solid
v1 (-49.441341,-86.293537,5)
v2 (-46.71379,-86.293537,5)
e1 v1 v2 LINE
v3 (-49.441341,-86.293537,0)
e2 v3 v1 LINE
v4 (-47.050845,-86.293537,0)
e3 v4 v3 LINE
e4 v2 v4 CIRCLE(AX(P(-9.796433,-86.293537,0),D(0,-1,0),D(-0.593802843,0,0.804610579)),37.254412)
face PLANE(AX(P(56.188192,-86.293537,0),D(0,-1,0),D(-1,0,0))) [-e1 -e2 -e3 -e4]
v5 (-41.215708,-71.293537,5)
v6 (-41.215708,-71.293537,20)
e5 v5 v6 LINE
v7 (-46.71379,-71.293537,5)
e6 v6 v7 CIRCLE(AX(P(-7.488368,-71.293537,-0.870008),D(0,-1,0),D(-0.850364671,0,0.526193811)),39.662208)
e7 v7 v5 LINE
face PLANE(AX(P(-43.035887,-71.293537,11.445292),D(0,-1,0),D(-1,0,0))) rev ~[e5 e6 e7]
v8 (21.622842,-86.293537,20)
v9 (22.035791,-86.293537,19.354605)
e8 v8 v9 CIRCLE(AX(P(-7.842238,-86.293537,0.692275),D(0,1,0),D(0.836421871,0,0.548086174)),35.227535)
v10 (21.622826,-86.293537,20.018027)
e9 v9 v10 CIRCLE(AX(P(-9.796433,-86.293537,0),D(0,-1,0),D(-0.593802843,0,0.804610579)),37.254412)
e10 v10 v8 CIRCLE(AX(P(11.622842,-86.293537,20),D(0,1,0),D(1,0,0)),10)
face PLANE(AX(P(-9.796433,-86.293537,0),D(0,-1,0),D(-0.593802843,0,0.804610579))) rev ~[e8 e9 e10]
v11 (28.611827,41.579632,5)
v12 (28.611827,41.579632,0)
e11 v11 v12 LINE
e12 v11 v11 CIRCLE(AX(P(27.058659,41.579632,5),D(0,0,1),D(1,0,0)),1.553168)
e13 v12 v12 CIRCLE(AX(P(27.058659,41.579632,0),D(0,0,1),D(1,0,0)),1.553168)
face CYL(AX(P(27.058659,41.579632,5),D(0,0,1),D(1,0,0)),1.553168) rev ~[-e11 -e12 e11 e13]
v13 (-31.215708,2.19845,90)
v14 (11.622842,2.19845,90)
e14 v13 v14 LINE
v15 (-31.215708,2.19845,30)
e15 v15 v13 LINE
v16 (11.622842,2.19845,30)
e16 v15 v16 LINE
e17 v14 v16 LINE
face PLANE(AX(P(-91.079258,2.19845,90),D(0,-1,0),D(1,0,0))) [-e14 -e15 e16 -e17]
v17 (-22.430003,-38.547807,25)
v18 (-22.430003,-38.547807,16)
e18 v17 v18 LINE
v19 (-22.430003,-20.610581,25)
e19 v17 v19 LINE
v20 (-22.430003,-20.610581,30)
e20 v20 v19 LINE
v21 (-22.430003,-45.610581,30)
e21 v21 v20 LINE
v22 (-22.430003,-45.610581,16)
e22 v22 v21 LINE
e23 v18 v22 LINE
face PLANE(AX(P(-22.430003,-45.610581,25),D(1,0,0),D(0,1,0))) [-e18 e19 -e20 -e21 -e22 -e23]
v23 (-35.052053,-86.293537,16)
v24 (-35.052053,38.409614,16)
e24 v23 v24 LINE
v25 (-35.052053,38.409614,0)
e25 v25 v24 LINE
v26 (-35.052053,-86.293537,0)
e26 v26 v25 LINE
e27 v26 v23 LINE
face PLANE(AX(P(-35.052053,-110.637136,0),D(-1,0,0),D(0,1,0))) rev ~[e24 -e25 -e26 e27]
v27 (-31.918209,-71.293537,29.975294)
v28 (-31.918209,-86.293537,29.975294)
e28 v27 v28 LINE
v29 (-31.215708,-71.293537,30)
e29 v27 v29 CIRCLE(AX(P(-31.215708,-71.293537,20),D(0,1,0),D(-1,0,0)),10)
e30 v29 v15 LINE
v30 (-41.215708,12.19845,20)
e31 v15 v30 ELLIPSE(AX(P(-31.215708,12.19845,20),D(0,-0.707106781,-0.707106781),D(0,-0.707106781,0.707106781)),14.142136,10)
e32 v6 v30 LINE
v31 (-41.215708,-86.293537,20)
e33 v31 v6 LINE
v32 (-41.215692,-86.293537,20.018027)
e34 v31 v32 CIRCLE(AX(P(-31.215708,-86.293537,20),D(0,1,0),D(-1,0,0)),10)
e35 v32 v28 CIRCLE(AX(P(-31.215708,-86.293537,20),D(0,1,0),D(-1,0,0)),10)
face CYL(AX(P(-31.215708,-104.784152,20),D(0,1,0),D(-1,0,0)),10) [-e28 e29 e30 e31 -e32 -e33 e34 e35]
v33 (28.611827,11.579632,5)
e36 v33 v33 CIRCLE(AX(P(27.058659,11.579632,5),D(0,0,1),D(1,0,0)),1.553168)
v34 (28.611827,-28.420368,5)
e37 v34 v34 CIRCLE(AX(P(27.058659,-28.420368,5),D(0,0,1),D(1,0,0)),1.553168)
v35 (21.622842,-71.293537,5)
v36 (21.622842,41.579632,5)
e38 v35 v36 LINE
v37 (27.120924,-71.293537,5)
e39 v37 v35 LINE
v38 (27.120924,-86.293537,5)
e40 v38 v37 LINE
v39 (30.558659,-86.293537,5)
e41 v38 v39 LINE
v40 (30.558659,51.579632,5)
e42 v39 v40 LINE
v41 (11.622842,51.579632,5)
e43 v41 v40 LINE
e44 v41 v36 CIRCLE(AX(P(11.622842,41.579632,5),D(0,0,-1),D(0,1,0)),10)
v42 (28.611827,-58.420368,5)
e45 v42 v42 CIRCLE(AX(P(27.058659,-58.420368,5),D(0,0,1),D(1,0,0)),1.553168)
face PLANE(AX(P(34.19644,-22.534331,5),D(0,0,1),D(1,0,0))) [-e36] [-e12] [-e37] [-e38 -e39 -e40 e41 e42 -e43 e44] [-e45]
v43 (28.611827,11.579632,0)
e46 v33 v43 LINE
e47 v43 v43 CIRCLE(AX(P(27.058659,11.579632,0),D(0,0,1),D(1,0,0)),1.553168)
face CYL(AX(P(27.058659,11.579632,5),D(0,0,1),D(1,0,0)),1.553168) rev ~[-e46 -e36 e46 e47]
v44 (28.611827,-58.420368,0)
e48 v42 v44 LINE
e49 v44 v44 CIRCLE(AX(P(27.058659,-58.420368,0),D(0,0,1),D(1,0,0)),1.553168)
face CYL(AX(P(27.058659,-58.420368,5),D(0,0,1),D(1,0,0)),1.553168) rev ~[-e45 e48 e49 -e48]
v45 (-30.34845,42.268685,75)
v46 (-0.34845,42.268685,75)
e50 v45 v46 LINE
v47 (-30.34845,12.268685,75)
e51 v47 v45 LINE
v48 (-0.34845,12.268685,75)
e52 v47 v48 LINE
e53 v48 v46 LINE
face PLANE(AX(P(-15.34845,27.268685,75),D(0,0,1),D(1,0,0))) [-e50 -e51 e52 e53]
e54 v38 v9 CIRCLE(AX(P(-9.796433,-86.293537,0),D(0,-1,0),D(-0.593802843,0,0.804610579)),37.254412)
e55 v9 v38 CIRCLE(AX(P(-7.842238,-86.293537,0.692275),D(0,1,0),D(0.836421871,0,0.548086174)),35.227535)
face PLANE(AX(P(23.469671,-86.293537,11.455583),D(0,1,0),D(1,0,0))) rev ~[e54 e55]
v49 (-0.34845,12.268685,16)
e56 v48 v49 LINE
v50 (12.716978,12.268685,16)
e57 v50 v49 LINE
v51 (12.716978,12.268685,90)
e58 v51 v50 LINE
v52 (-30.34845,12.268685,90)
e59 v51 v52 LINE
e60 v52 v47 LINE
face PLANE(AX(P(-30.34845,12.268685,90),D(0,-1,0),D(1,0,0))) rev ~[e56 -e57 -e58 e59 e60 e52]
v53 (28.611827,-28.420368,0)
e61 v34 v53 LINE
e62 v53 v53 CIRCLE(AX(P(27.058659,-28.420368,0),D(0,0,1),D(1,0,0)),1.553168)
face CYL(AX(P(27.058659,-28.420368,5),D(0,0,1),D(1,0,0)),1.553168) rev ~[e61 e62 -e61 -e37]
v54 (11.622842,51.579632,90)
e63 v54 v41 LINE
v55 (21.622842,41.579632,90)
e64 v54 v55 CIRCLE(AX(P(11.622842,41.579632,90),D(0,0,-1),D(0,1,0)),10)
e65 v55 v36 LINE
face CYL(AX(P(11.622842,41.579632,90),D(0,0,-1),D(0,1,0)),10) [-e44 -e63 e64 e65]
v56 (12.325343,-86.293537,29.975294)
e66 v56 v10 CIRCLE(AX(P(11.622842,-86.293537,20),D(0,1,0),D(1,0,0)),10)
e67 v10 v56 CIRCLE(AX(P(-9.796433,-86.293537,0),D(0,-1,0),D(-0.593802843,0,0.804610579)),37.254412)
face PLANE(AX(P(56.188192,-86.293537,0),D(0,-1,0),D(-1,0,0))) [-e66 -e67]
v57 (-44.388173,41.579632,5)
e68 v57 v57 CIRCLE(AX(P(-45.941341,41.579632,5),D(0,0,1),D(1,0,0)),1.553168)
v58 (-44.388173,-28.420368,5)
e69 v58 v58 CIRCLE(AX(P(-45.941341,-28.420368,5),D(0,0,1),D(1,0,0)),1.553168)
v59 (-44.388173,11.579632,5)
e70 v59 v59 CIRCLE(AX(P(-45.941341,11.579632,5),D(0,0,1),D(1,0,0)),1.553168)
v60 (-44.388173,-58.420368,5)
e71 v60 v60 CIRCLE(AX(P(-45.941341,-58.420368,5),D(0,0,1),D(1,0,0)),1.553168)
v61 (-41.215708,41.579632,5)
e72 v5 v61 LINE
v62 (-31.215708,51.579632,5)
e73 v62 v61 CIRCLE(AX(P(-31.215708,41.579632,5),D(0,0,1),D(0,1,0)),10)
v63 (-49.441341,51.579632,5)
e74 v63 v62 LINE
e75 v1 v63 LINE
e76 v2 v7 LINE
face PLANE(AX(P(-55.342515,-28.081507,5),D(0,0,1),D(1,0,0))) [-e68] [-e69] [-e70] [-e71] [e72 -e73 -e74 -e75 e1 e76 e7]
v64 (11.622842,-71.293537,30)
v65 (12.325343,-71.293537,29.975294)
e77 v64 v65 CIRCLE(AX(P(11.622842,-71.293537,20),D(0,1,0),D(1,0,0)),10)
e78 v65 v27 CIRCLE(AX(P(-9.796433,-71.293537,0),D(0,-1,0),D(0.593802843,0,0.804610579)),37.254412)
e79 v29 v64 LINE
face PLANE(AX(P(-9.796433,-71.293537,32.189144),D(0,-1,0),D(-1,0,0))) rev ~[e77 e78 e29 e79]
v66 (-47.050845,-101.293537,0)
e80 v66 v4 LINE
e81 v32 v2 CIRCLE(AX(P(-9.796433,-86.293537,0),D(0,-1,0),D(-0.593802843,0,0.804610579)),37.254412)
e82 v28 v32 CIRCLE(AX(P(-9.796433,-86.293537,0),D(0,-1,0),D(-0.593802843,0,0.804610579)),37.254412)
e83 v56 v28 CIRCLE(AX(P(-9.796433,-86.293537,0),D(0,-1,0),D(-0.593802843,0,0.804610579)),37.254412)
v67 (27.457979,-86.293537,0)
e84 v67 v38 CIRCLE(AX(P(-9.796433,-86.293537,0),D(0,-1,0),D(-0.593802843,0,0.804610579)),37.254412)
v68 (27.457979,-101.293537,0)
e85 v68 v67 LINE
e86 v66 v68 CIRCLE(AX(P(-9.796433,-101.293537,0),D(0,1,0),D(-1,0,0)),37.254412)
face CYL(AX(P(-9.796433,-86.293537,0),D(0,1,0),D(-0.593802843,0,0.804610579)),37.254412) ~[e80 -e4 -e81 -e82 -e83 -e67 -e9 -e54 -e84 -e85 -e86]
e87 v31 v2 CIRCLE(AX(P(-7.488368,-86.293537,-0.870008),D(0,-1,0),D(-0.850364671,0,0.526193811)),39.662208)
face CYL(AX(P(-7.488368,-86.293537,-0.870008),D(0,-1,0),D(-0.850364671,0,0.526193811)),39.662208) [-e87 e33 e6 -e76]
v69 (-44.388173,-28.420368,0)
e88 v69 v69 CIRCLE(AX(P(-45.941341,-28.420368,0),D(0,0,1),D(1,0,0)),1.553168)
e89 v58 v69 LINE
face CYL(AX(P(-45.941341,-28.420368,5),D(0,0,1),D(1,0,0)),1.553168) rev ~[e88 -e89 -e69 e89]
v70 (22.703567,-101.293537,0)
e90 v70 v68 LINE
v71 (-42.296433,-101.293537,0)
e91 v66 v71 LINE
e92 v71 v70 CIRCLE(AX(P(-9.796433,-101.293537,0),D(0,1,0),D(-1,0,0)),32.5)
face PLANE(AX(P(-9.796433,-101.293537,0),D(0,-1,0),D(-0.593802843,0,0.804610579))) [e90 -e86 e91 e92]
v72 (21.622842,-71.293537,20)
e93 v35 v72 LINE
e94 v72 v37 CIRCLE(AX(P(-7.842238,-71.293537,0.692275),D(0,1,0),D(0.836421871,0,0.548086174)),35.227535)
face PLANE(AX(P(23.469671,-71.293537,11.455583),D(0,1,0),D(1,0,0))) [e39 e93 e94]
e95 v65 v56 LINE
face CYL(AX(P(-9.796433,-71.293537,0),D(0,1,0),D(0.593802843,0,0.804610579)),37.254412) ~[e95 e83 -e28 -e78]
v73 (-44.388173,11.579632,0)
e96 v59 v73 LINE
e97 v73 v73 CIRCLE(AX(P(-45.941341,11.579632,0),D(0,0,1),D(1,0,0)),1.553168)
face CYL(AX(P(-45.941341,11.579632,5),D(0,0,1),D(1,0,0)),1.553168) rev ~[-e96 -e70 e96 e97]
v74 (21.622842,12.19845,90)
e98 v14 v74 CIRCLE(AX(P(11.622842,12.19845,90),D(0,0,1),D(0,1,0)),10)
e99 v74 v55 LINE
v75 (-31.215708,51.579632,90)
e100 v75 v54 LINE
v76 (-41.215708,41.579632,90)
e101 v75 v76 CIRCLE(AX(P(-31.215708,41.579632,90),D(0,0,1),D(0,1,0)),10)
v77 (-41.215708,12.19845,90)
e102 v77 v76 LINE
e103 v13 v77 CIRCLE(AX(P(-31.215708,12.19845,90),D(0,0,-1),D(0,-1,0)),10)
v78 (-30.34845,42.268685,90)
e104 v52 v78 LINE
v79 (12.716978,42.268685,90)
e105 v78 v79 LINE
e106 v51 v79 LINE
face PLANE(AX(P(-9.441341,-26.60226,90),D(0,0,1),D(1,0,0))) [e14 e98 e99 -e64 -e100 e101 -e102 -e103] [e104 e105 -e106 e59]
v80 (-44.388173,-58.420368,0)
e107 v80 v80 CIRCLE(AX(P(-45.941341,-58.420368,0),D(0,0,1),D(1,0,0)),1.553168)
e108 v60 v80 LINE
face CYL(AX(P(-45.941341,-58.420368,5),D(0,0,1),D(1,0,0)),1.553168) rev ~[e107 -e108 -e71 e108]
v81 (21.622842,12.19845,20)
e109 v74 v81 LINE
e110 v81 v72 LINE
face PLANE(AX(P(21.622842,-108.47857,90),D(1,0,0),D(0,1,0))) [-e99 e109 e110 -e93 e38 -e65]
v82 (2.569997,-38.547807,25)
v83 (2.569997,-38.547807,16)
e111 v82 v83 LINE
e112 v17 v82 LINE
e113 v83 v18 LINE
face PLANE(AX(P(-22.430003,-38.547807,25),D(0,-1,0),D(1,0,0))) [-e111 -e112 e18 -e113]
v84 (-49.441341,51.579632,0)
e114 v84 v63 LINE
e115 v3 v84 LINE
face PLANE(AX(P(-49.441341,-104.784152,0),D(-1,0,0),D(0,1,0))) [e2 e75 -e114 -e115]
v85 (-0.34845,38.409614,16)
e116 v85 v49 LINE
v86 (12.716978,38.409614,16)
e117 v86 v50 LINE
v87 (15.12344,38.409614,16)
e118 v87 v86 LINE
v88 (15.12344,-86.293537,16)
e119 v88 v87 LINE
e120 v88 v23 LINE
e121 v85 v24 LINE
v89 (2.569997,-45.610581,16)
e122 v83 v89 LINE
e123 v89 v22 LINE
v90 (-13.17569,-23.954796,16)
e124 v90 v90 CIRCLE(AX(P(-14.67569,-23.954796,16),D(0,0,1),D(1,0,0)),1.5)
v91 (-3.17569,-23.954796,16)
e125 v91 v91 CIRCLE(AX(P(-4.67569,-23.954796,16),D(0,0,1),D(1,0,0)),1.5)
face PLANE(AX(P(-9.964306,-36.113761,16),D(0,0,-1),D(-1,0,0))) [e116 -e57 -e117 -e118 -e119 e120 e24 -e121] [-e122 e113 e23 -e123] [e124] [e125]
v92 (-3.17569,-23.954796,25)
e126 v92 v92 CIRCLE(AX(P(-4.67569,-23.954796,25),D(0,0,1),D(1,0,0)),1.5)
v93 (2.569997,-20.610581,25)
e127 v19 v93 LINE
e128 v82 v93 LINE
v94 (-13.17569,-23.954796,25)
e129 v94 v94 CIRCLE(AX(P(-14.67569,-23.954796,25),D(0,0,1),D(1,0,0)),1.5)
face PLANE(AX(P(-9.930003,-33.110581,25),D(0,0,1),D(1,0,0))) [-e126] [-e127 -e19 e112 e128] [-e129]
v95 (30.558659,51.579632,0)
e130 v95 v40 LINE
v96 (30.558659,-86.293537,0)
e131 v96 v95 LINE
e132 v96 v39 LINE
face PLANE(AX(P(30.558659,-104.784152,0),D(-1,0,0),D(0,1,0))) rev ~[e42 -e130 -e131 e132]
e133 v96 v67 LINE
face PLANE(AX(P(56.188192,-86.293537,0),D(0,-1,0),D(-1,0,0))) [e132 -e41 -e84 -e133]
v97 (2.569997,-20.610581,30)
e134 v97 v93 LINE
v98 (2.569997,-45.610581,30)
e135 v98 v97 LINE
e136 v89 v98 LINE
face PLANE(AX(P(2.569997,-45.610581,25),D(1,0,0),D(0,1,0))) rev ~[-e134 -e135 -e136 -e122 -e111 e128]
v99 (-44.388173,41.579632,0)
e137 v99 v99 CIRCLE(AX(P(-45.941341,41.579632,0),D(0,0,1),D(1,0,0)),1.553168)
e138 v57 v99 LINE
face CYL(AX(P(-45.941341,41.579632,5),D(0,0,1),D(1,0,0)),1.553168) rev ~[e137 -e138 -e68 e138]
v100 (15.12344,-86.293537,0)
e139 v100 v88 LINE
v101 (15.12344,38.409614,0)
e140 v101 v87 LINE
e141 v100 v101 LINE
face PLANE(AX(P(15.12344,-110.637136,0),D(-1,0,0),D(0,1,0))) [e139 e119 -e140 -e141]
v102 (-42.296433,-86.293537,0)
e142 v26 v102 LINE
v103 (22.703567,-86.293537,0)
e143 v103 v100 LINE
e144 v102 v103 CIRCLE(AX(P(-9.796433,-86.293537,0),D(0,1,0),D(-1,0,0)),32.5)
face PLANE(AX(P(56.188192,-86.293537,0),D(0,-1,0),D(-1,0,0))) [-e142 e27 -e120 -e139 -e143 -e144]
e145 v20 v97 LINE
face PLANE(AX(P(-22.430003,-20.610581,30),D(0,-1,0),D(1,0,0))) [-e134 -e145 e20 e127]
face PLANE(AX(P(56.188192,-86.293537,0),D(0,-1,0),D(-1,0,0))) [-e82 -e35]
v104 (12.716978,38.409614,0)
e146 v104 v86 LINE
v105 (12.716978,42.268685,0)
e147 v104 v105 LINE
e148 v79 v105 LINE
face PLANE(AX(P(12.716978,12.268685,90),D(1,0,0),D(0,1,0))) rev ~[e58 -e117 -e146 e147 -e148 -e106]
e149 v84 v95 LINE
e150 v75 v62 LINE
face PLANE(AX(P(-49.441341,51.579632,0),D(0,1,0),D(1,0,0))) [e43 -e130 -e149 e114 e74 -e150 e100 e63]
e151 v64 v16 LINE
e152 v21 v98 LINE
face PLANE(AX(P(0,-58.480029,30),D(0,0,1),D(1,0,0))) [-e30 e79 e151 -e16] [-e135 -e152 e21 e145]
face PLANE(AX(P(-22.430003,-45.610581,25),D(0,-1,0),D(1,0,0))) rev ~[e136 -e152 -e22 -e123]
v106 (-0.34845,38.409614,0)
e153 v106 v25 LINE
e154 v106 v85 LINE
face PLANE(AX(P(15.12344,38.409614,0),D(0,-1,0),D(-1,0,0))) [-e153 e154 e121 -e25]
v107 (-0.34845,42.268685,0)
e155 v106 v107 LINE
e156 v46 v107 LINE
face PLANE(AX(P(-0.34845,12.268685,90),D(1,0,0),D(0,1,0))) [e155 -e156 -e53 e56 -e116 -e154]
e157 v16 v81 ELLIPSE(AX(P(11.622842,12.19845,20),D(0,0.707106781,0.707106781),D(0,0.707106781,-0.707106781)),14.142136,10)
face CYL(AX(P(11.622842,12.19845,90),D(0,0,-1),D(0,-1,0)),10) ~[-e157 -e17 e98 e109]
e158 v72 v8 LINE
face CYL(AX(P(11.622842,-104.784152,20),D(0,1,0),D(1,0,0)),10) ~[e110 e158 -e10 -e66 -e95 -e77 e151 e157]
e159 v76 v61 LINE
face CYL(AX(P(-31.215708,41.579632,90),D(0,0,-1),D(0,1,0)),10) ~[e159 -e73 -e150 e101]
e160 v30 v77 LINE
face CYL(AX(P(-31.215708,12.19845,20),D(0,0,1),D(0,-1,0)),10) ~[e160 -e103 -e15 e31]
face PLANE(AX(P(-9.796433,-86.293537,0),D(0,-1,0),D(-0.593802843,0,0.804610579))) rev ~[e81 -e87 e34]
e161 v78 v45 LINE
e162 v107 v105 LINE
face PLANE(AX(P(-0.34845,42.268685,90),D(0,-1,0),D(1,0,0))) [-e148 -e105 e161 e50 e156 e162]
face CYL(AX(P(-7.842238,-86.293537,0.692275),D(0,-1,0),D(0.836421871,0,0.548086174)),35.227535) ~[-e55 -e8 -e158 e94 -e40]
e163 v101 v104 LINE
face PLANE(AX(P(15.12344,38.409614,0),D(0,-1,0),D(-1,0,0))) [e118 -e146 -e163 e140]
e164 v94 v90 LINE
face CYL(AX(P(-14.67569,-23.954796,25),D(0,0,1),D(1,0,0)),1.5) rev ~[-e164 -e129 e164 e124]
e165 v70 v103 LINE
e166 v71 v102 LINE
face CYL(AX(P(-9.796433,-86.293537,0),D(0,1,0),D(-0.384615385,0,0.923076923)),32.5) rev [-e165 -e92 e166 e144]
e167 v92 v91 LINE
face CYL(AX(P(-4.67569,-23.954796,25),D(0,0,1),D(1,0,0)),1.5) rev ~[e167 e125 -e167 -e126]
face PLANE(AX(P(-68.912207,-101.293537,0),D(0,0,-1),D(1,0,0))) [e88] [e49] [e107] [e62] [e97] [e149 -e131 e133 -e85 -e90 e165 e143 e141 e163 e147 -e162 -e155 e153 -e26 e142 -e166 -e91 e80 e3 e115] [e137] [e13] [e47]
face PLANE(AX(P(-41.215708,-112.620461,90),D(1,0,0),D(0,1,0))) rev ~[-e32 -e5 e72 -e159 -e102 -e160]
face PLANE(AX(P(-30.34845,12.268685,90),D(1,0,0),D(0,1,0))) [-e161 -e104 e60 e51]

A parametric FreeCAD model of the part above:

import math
import FreeCAD as App
import Part
import Sketcher
from FreeCAD import Vector


def edges_at(feature, points):
    """Names of the edges that pass closest to the given points."""
    edges = feature.Shape.Edges
    near = lambda p: min(range(len(edges)), key=lambda i: edges[i].distToShape(Part.Vertex(*p))[0])
    return sorted({f"Edge{near(p) + 1}" for p in points})

doc = App.newDocument("Part")
body = doc.addObject("PartDesign::Body", "Body")

# Sketch on XY plane
sketch1 = body.newObject("Sketcher::SketchObject", "Sketch")
sketch1.AttachmentSupport = (doc.getObject("XY_Plane"), [""])
sketch1.MapMode = "FlatFace"
sketch1.addGeometry([
    Part.LineSegment(Vector(-49, 52, 0), Vector(-49, -105, 0)),
    Part.LineSegment(Vector(-49, -105, 0), Vector(31, -105, 0)),
    Part.LineSegment(Vector(31, -105, 0), Vector(31, 52, 0)),
    Part.LineSegment(Vector(31, 52, 0), Vector(-49, 52, 0)),
], False)
sketch1.addConstraint([
    Sketcher.Constraint("Coincident", 0, 2, 1, 1),
    Sketcher.Constraint("Coincident", 1, 2, 2, 1),
    Sketcher.Constraint("Coincident", 2, 2, 3, 1),
    Sketcher.Constraint("Coincident", 3, 2, 0, 1),
    Sketcher.Constraint("Vertical", 0),
    Sketcher.Constraint("Horizontal", 1),
    Sketcher.Constraint("Vertical", 2),
    Sketcher.Constraint("Horizontal", 3),
    Sketcher.Constraint("DistanceX", 1, 1, 1, 2, 80.0),
    Sketcher.Constraint("DistanceY", 0, 2, 0, 1, 156.363783),
    Sketcher.Constraint("DistanceX", 0, 2, -1, 1, 49.441341),
    Sketcher.Constraint("DistanceY", 0, 2, -1, 1, 104.784152),
])
pad1 = body.newObject("PartDesign::Pad", "Pad")
pad1.Profile = sketch1
pad1.Length = 90

# Sketch on XY plane
sketch2 = body.newObject("Sketcher::SketchObject", "Sketch001")
sketch2.AttachmentSupport = (doc.getObject("XY_Plane"), [""])
sketch2.MapMode = "FlatFace"
sketch2.AttachmentOffset = App.Placement(Vector(0, 0, 90), App.Rotation())
sketch2.addGeometry([
    Part.LineSegment(Vector(-30, 42, 0), Vector(-30, 12, 0)),
    Part.LineSegment(Vector(-30, 12, 0), Vector(0, 12, 0)),
    Part.LineSegment(Vector(0, 12, 0), Vector(0, 42, 0)),
    Part.LineSegment(Vector(0, 42, 0), Vector(-30, 42, 0)),
], False)
sketch2.addConstraint([
    Sketcher.Constraint("Coincident", 0, 2, 1, 1),
    Sketcher.Constraint("Coincident", 1, 2, 2, 1),
    Sketcher.Constraint("Coincident", 2, 2, 3, 1),
    Sketcher.Constraint("Coincident", 3, 2, 0, 1),
    Sketcher.Constraint("Vertical", 0),
    Sketcher.Constraint("Horizontal", 1),
    Sketcher.Constraint("Vertical", 2),
    Sketcher.Constraint("Horizontal", 3),
    Sketcher.Constraint("Equal", 3, 0),
    Sketcher.Constraint("DistanceX", 1, 1, 1, 2, 30.0),
    Sketcher.Constraint("DistanceX", 0, 2, -1, 1, 30.34845),
    Sketcher.Constraint("DistanceY", -1, 1, 0, 2, 12.268685),
])
pocket1 = body.newObject("PartDesign::Pocket", "Pocket")
pocket1.Profile = sketch2
pocket1.Length = 15

# Sketch on XY plane
sketch3 = body.newObject("Sketcher::SketchObject", "Sketch002")
sketch3.AttachmentSupport = (doc.getObject("XY_Plane"), [""])
sketch3.MapMode = "FlatFace"
sketch3.AttachmentOffset = App.Placement(Vector(0, 0, 90), App.Rotation())
sketch3.addGeometry([
    Part.LineSegment(Vector(-91, 2, 0), Vector(-91, -119, 0)),
    Part.LineSegment(Vector(-91, -119, 0), Vector(91, -119, 0)),
    Part.LineSegment(Vector(91, -119, 0), Vector(91, 2, 0)),
    Part.LineSegment(Vector(91, 2, 0), Vector(-91, 2, 0)),
], False)
sketch3.addConstraint([
    Sketcher.Constraint("Coincident", 0, 2, 1, 1),
    Sketcher.Constraint("Coincident", 1, 2, 2, 1),
    Sketcher.Constraint("Coincident", 2, 2, 3, 1),
    Sketcher.Constraint("Coincident", 3, 2, 0, 1),
    Sketcher.Constraint("Vertical", 0),
    Sketcher.Constraint("Horizontal", 1),
    Sketcher.Constraint("Vertical", 2),
    Sketcher.Constraint("Horizontal", 3),
    Sketcher.Constraint("DistanceX", 1, 1, 1, 2, 182.158516),
    Sketcher.Constraint("DistanceY", 0, 2, 0, 1, 121.356957),
    Sketcher.Constraint("DistanceX", 0, 2, -1, 1, 91.079258),
    Sketcher.Constraint("DistanceY", -1, 1, 2, 2, 2.19845),
])
pocket2 = body.newObject("PartDesign::Pocket", "Pocket001")
pocket2.Profile = sketch3
pocket2.Length = 60

# Sketch on XY plane
sketch4 = body.newObject("Sketcher::SketchObject", "Sketch003")
sketch4.AttachmentSupport = (doc.getObject("XY_Plane"), [""])
sketch4.MapMode = "FlatFace"
sketch4.addGeometry([
    Part.LineSegment(Vector(15, 38, 0), Vector(15, -111, 0)),
    Part.LineSegment(Vector(15, -111, 0), Vector(-35, -111, 0)),
    Part.LineSegment(Vector(-35, -111, 0), Vector(-35, 38, 0)),
    Part.LineSegment(Vector(-35, 38, 0), Vector(15, 38, 0)),
], False)
sketch4.addConstraint([
    Sketcher.Constraint("Coincident", 0, 2, 1, 1),
    Sketcher.Constraint("Coincident", 1, 2, 2, 1),
    Sketcher.Constraint("Coincident", 2, 2, 3, 1),
    Sketcher.Constraint("Coincident", 3, 2, 0, 1),
    Sketcher.Constraint("Vertical", 0),
    Sketcher.Constraint("Horizontal", 1),
    Sketcher.Constraint("Vertical", 2),
    Sketcher.Constraint("Horizontal", 3),
    Sketcher.Constraint("DistanceY", 0, 2, 0, 1, 149.046749),
    Sketcher.Constraint("DistanceX", 1, 2, 1, 1, 50.175493),
    Sketcher.Constraint("DistanceX", -1, 1, 0, 2, 15.12344),
    Sketcher.Constraint("DistanceY", 0, 2, -1, 1, 110.637136),
])
pocket3 = body.newObject("PartDesign::Pocket", "Pocket002")
pocket3.Profile = sketch4
pocket3.Length = 16
pocket3.Reversed = True

# Sketch on XY plane
sketch5 = body.newObject("Sketcher::SketchObject", "Sketch004")
sketch5.AttachmentSupport = (doc.getObject("XY_Plane"), [""])
sketch5.MapMode = "FlatFace"
sketch5.AttachmentOffset = App.Placement(Vector(0, 0, 90), App.Rotation())
sketch5.addGeometry([
    Part.LineSegment(Vector(0, 42, 0), Vector(0, 12, 0)),
    Part.LineSegment(Vector(0, 12, 0), Vector(13, 12, 0)),
    Part.LineSegment(Vector(13, 12, 0), Vector(13, 42, 0)),
    Part.LineSegment(Vector(13, 42, 0), Vector(0, 42, 0)),
], False)
sketch5.addConstraint([
    Sketcher.Constraint("Coincident", 0, 2, 1, 1),
    Sketcher.Constraint("Coincident", 1, 2, 2, 1),
    Sketcher.Constraint("Coincident", 2, 2, 3, 1),
    Sketcher.Constraint("Coincident", 3, 2, 0, 1),
    Sketcher.Constraint("Vertical", 0),
    Sketcher.Constraint("Horizontal", 1),
    Sketcher.Constraint("Vertical", 2),
    Sketcher.Constraint("Horizontal", 3),
    Sketcher.Constraint("DistanceY", 0, 2, 0, 1, 30.0),
    Sketcher.Constraint("DistanceX", 1, 1, 1, 2, 13.065428),
    Sketcher.Constraint("DistanceX", 0, 2, -1, 1, 0.34845),
    Sketcher.Constraint("DistanceY", -1, 1, 0, 2, 12.268685),
])
pocket4 = body.newObject("PartDesign::Pocket", "Pocket003")
pocket4.Profile = sketch5
pocket4.Type = "ThroughAll"

# Sketch on XY plane
sketch6 = body.newObject("Sketcher::SketchObject", "Sketch005")
sketch6.AttachmentSupport = (doc.getObject("XY_Plane"), [""])
sketch6.MapMode = "FlatFace"
sketch6.AttachmentOffset = App.Placement(Vector(0, 0, 90), App.Rotation())
sketch6.addGeometry([
    Part.LineSegment(Vector(-69, 56, 0), Vector(-69, -113, 0)),
    Part.LineSegment(Vector(-69, -113, 0), Vector(-41, -113, 0)),
    Part.LineSegment(Vector(-41, -113, 0), Vector(-41, 56, 0)),
    Part.LineSegment(Vector(-41, 56, 0), Vector(-69, 56, 0)),
], False)
sketch6.addConstraint([
    Sketcher.Constraint("Coincident", 0, 2, 1, 1),
    Sketcher.Constraint("Coincident", 1, 2, 2, 1),
    Sketcher.Constraint("Coincident", 2, 2, 3, 1),
    Sketcher.Constraint("Coincident", 3, 2, 0, 1),
    Sketcher.Constraint("Vertical", 0),
    Sketcher.Constraint("Horizontal", 1),
    Sketcher.Constraint("Vertical", 2),
    Sketcher.Constraint("Horizontal", 3),
    Sketcher.Constraint("DistanceY", 0, 2, 0, 1, 169.077909),
    Sketcher.Constraint("DistanceX", 1, 1, 1, 2, 28.253614),
    Sketcher.Constraint("DistanceX", 0, 2, -1, 1, 69.469322),
    Sketcher.Constraint("DistanceY", 0, 2, -1, 1, 112.620461),
])
pocket5 = body.newObject("PartDesign::Pocket", "Pocket004")
pocket5.Profile = sketch6
pocket5.Length = 85

# Sketch on XY plane
sketch7 = body.newObject("Sketcher::SketchObject", "Sketch006")
sketch7.AttachmentSupport = (doc.getObject("XY_Plane"), [""])
sketch7.MapMode = "FlatFace"
sketch7.AttachmentOffset = App.Placement(Vector(0, 0, 30), App.Rotation())
sketch7.addGeometry([
    Part.LineSegment(Vector(-22, -21, 0), Vector(-22, -46, 0)),
    Part.LineSegment(Vector(-22, -46, 0), Vector(3, -46, 0)),
    Part.LineSegment(Vector(3, -46, 0), Vector(3, -21, 0)),
    Part.LineSegment(Vector(3, -21, 0), Vector(-22, -21, 0)),
], False)
sketch7.addConstraint([
    Sketcher.Constraint("Coincident", 0, 2, 1, 1),
    Sketcher.Constraint("Coincident", 1, 2, 2, 1),
    Sketcher.Constraint("Coincident", 2, 2, 3, 1),
    Sketcher.Constraint("Coincident", 3, 2, 0, 1),
    Sketcher.Constraint("Vertical", 0),
    Sketcher.Constraint("Horizontal", 1),
    Sketcher.Constraint("Vertical", 2),
    Sketcher.Constraint("Horizontal", 3),
    Sketcher.Constraint("Equal", 3, 0),
    Sketcher.Constraint("DistanceX", 1, 1, 1, 2, 25.0),
    Sketcher.Constraint("DistanceY", 0, 2, -1, 1, 45.610581),
    Sketcher.Constraint("DistanceX", 0, 2, -1, 1, 22.430003),
])
pocket6 = body.newObject("PartDesign::Pocket", "Pocket005")
pocket6.Profile = sketch7
pocket6.Length = 5

# Sketch on XY plane
sketch8 = body.newObject("Sketcher::SketchObject", "Sketch007")
sketch8.AttachmentSupport = (doc.getObject("XY_Plane"), [""])
sketch8.MapMode = "FlatFace"
sketch8.AttachmentOffset = App.Placement(Vector(0, 0, 25), App.Rotation())
sketch8.addGeometry([
    Part.LineSegment(Vector(-22, -39, 0), Vector(-22, -46, 0)),
    Part.LineSegment(Vector(-22, -46, 0), Vector(3, -46, 0)),
    Part.LineSegment(Vector(3, -46, 0), Vector(3, -39, 0)),
    Part.LineSegment(Vector(3, -39, 0), Vector(-22, -39, 0)),
], False)
sketch8.addConstraint([
    Sketcher.Constraint("Coincident", 0, 2, 1, 1),
    Sketcher.Constraint("Coincident", 1, 2, 2, 1),
    Sketcher.Constraint("Coincident", 2, 2, 3, 1),
    Sketcher.Constraint("Coincident", 3, 2, 0, 1),
    Sketcher.Constraint("Vertical", 0),
    Sketcher.Constraint("Horizontal", 1),
    Sketcher.Constraint("Vertical", 2),
    Sketcher.Constraint("Horizontal", 3),
    Sketcher.Constraint("DistanceX", 1, 1, 1, 2, 25.0),
    Sketcher.Constraint("DistanceY", 0, 2, 0, 1, 7.062775),
    Sketcher.Constraint("DistanceY", 0, 2, -1, 1, 45.610581),
    Sketcher.Constraint("DistanceX", 0, 2, -1, 1, 22.430003),
])
pocket7 = body.newObject("PartDesign::Pocket", "Pocket006")
pocket7.Profile = sketch8
pocket7.Type = "ThroughAll"

# Sketch on XY plane
sketch9 = body.newObject("Sketcher::SketchObject", "Sketch008")
sketch9.AttachmentSupport = (doc.getObject("XY_Plane"), [""])
sketch9.MapMode = "FlatFace"
sketch9.AttachmentOffset = App.Placement(Vector(0, 0, 5), App.Rotation())
sketch9.addGeometry([
    Part.Circle(Vector(-45.9, 41.6, 0), Vector(0, 0, 1), 1.6),  # 0
    Part.Circle(Vector(27.1, 41.6, 0), Vector(0, 0, 1), 1.6),  # 1
    Part.Circle(Vector(-45.9, 11.6, 0), Vector(0, 0, 1), 1.6),  # 2
    Part.Circle(Vector(-45.9, -28.4, 0), Vector(0, 0, 1), 1.6),  # 3
    Part.Circle(Vector(27.1, 11.6, 0), Vector(0, 0, 1), 1.6),  # 4
    Part.Circle(Vector(27.1, -28.4, 0), Vector(0, 0, 1), 1.6),  # 5
    Part.Circle(Vector(-45.9, -58.4, 0), Vector(0, 0, 1), 1.6),  # 6
    Part.Circle(Vector(27.1, -58.4, 0), Vector(0, 0, 1), 1.6),  # 7
], False)
sketch9.addConstraint([
    Sketcher.Constraint("Equal", 0, 1),
    Sketcher.Constraint("Equal", 1, 2),
    Sketcher.Constraint("Equal", 2, 3),
    Sketcher.Constraint("Equal", 3, 4),
    Sketcher.Constraint("Equal", 4, 5),
    Sketcher.Constraint("Equal", 5, 6),
    Sketcher.Constraint("Equal", 6, 7),
    Sketcher.Constraint("Horizontal", 0, 3, 1, 3),
    Sketcher.Constraint("Horizontal", 2, 3, 4, 3),
    Sketcher.Constraint("Horizontal", 3, 3, 5, 3),
    Sketcher.Constraint("Horizontal", 6, 3, 7, 3),
    Sketcher.Constraint("Vertical", 0, 3, 2, 3),
    Sketcher.Constraint("Vertical", 2, 3, 3, 3),
    Sketcher.Constraint("Vertical", 1, 3, 4, 3),
    Sketcher.Constraint("Vertical", 4, 3, 5, 3),
    Sketcher.Constraint("Vertical", 3, 3, 6, 3),
    Sketcher.Constraint("Vertical", 5, 3, 7, 3),
    Sketcher.Constraint("DistanceX", 0, 3, 1, 3, 73.0),
    Sketcher.Constraint("DistanceY", 2, 3, 0, 3, 30.0),
    Sketcher.Constraint("DistanceY", 3, 3, 2, 3, 40.0),
    Sketcher.Constraint("DistanceY", 6, 3, 3, 3, 30.0),
    Sketcher.Constraint("Diameter", 0, 3.106336),
    Sketcher.Constraint("DistanceX", 0, 3, -1, 1, 45.941341),
    Sketcher.Constraint("DistanceY", -1, 1, 0, 3, 41.579632),
])
pocket8 = body.newObject("PartDesign::Pocket", "Pocket007")
pocket8.Profile = sketch9
pocket8.Type = "ThroughAll"
doc.recompute()

fillet = body.newObject("PartDesign::Fillet", "Fillet")
fillet.Base = (pocket8, edges_at(pocket8, [(-41.216, -51.293, 30)]))
fillet.Radius = 10

# Sketch on XY plane
sketch10 = body.newObject("Sketcher::SketchObject", "Sketch009")
sketch10.AttachmentSupport = (doc.getObject("XY_Plane"), [""])
sketch10.MapMode = "FlatFace"
sketch10.AttachmentOffset = App.Placement(Vector(0, 0, 90), App.Rotation())
sketch10.addGeometry([
    Part.LineSegment(Vector(22, 63, 0), Vector(22, -108, 0)),
    Part.LineSegment(Vector(22, -108, 0), Vector(47, -108, 0)),
    Part.LineSegment(Vector(47, -108, 0), Vector(47, 63, 0)),
    Part.LineSegment(Vector(47, 63, 0), Vector(22, 63, 0)),
], False)
sketch10.addConstraint([
    Sketcher.Constraint("Coincident", 0, 2, 1, 1),
    Sketcher.Constraint("Coincident", 1, 2, 2, 1),
    Sketcher.Constraint("Coincident", 2, 2, 3, 1),
    Sketcher.Constraint("Coincident", 3, 2, 0, 1),
    Sketcher.Constraint("Vertical", 0),
    Sketcher.Constraint("Horizontal", 1),
    Sketcher.Constraint("Vertical", 2),
    Sketcher.Constraint("Horizontal", 3),
    Sketcher.Constraint("DistanceY", 0, 2, 0, 1, 171.888478),
    Sketcher.Constraint("DistanceX", 1, 1, 1, 2, 25.147196),
    Sketcher.Constraint("DistanceY", 0, 2, -1, 1, 108.47857),
    Sketcher.Constraint("DistanceX", -1, 1, 0, 2, 21.622842),
])
pocket9 = body.newObject("PartDesign::Pocket", "Pocket008")
pocket9.Profile = sketch10
pocket9.Length = 85
doc.recompute()

fillet2 = body.newObject("PartDesign::Fillet", "Fillet001")
fillet2.Base = (pocket9, edges_at(pocket9, [(21.623, -51.293, 30)]))
fillet2.Radius = 10
doc.recompute()

fillet3 = body.newObject("PartDesign::Fillet", "Fillet002")
fillet3.Base = (fillet2, edges_at(fillet2, [
    (21.623, 2.198, 55),
    (-41.216, 2.198, 55),
    (-41.216, 51.58, 47.5),
    (21.623, 51.58, 47.5),
]))
fillet3.Radius = 10

# Sketch on XY plane
sketch11 = body.newObject("Sketcher::SketchObject", "Sketch010")
sketch11.AttachmentSupport = (doc.getObject("XY_Plane"), [""])
sketch11.MapMode = "FlatFace"
sketch11.addGeometry([
    Part.LineSegment(Vector(56, -86, 0), Vector(56, -119, 0)),
    Part.LineSegment(Vector(56, -119, 0), Vector(-96, -119, 0)),
    Part.LineSegment(Vector(-96, -119, 0), Vector(-96, -86, 0)),
    Part.LineSegment(Vector(-96, -86, 0), Vector(56, -86, 0)),
], False)
sketch11.addConstraint([
    Sketcher.Constraint("Coincident", 0, 2, 1, 1),
    Sketcher.Constraint("Coincident", 1, 2, 2, 1),
    Sketcher.Constraint("Coincident", 2, 2, 3, 1),
    Sketcher.Constraint("Coincident", 3, 2, 0, 1),
    Sketcher.Constraint("Vertical", 0),
    Sketcher.Constraint("Horizontal", 1),
    Sketcher.Constraint("Vertical", 2),
    Sketcher.Constraint("Horizontal", 3),
    Sketcher.Constraint("DistanceX", 1, 2, 1, 1, 152.348652),
    Sketcher.Constraint("DistanceY", 0, 2, 0, 1, 32.578689),
    Sketcher.Constraint("DistanceX", -1, 1, 0, 2, 56.188192),
    Sketcher.Constraint("DistanceY", 0, 2, -1, 1, 118.872226),
])
pocket10 = body.newObject("PartDesign::Pocket", "Pocket009")
pocket10.Profile = sketch11
pocket10.Type = "ThroughAll"
pocket10.Reversed = True

# Sketch on XZ plane
sketch12 = body.newObject("Sketcher::SketchObject", "Sketch011")
sketch12.AttachmentSupport = (doc.getObject("XZ_Plane"), [""])
sketch12.MapMode = "FlatFace"
sketch12.AttachmentOffset = App.Placement(Vector(0, 0, 86.293537), App.Rotation())
sketch12.addGeometry([
    Part.Circle(Vector(-10, 0, 0), Vector(0, 0, 1), 37),
    Part.Circle(Vector(-10, 0, 0), Vector(0, 0, 1), 32),
], False)
sketch12.addConstraint([
    Sketcher.Constraint("Coincident", 1, 3, 0, 3),
    Sketcher.Constraint("PointOnObject", 0, 3, -1),
    Sketcher.Constraint("Diameter", 1, 65.0),
    Sketcher.Constraint("Diameter", 0, 74.508824),
    Sketcher.Constraint("DistanceX", 0, 3, -1, 1, 9.796433),
])
pad2 = body.newObject("PartDesign::Pad", "Pad001")
pad2.Profile = sketch12
pad2.Length = 15

# Sketch on XZ plane
sketch13 = body.newObject("Sketcher::SketchObject", "Sketch012")
sketch13.AttachmentSupport = (doc.getObject("XZ_Plane"), [""])
sketch13.MapMode = "FlatFace"
sketch13.AttachmentOffset = App.Placement(Vector(0, 0, 101.293537), App.Rotation())
sketch13.addGeometry([
    Part.LineSegment(Vector(-69, 0, 0), Vector(-69, -43, 0)),
    Part.LineSegment(Vector(-69, -43, 0), Vector(59, -43, 0)),
    Part.LineSegment(Vector(59, -43, 0), Vector(59, 0, 0)),
    Part.LineSegment(Vector(59, 0, 0), Vector(-69, 0, 0)),
], False)
sketch13.addConstraint([
    Sketcher.Constraint("Coincident", 0, 2, 1, 1),
    Sketcher.Constraint("Coincident", 1, 2, 2, 1),
    Sketcher.Constraint("Coincident", 2, 2, 3, 1),
    Sketcher.Constraint("Coincident", 3, 2, 0, 1),
    Sketcher.Constraint("Vertical", 0),
    Sketcher.Constraint("Horizontal", 1),
    Sketcher.Constraint("Vertical", 2),
    Sketcher.Constraint("Horizontal", 3),
    Sketcher.Constraint("PointOnObject", 2, 2, -1),
    Sketcher.Constraint("DistanceX", 1, 1, 1, 2, 127.729938),
    Sketcher.Constraint("DistanceY", 0, 2, 0, 1, 42.548403),
    Sketcher.Constraint("DistanceX", -1, 1, 1, 2, 58.817731),
])
pocket11 = body.newObject("PartDesign::Pocket", "Pocket010")
pocket11.Profile = sketch13
pocket11.Type = "ThroughAll"

# Sketch on XZ plane
sketch14 = body.newObject("Sketcher::SketchObject", "Sketch013")
sketch14.AttachmentSupport = (doc.getObject("XZ_Plane"), [""])
sketch14.MapMode = "FlatFace"
sketch14.AttachmentOffset = App.Placement(Vector(0, 0, 86.293537), App.Rotation())
sketch14.addGeometry([
    Part.LineSegment(Vector(-41, 5, 0), Vector(-47, 5, 0)),
    Part.ArcOfCircle(Part.Circle(Vector(-7, -1, 0), Vector(0, 0, 1), 40), math.radians(148), math.radians(171)),
    Part.LineSegment(Vector(-41, 20, 0), Vector(-41, 5, 0)),
], False)
sketch14.addConstraint([
    Sketcher.Constraint("Coincident", 0, 2, 1, 2),
    Sketcher.Constraint("Coincident", 1, 1, 2, 1),
    Sketcher.Constraint("Coincident", 2, 2, 0, 1),
    Sketcher.Constraint("Horizontal", 0),
    Sketcher.Constraint("Vertical", 2),
    Sketcher.Constraint("DistanceY", 2, 2, 2, 1, 15.0),
    Sketcher.Constraint("DistanceY", -1, 1, 0, 2, 5.0),
    Sketcher.Constraint("Radius", 1, 39.662208),
    Sketcher.Constraint("DistanceX", 0, 2, 0, 1, 5.498082),
    Sketcher.Constraint("DistanceX", 0, 2, -1, 1, 46.71379),
])
pad3 = body.newObject("PartDesign::Pad", "Pad002")
pad3.Profile = sketch14
pad3.Length = 15
pad3.Reversed = True

# Sketch on XZ plane
sketch15 = body.newObject("Sketcher::SketchObject", "Sketch014")
sketch15.AttachmentSupport = (doc.getObject("XZ_Plane"), [""])
sketch15.MapMode = "FlatFace"
sketch15.AttachmentOffset = App.Placement(Vector(0, 0, 71.293537), App.Rotation())
sketch15.addGeometry([
    Part.LineSegment(Vector(12, 30, 0), Vector(-32, 30, 0)),
    Part.ArcOfCircle(Part.Circle(Vector(-10, 0, 0), Vector(0, 0, 1), 37), math.radians(54), math.radians(126)),
], False)
sketch15.addConstraint([
    Sketcher.Constraint("Coincident", 0, 1, 1, 1),
    Sketcher.Constraint("Coincident", 1, 2, 0, 2),
    Sketcher.Constraint("Horizontal", 0),
    Sketcher.Constraint("PointOnObject", 1, 3, -1),
    Sketcher.Constraint("Radius", 1, 37.254412),
    Sketcher.Constraint("DistanceX", 0, 2, 0, 1, 44.243552),
    Sketcher.Constraint("DistanceX", 1, 2, -1, 1, 31.918209),
])
pad4 = body.newObject("PartDesign::Pad", "Pad003")
pad4.Profile = sketch15
pad4.Length = 15

# Sketch on XZ plane
sketch16 = body.newObject("Sketcher::SketchObject", "Sketch015")
sketch16.AttachmentSupport = (doc.getObject("XZ_Plane"), [""])
sketch16.MapMode = "FlatFace"
sketch16.AttachmentOffset = App.Placement(Vector(0, 0, 86.293537), App.Rotation())
sketch16.addGeometry([
    Part.LineSegment(Vector(27, 5, 0), Vector(22, 5, 0)),
    Part.LineSegment(Vector(22, 5, 0), Vector(22, 20, 0)),
    Part.ArcOfCircle(Part.Circle(Vector(-8, 1, 0), Vector(0, 0, 1), 35), math.radians(7), math.radians(33)),
], False)
sketch16.addConstraint([
    Sketcher.Constraint("Coincident", 0, 2, 1, 1),
    Sketcher.Constraint("Coincident", 1, 2, 2, 2),
    Sketcher.Constraint("Coincident", 2, 1, 0, 1),
    Sketcher.Constraint("Horizontal", 0),
    Sketcher.Constraint("Vertical", 1),
    Sketcher.Constraint("DistanceY", 1, 1, 1, 2, 15.0),
    Sketcher.Constraint("DistanceY", -1, 1, 0, 2, 5.0),
    Sketcher.Constraint("Radius", 2, 35.227535),
    Sketcher.Constraint("DistanceX", 0, 2, 0, 1, 5.498082),
    Sketcher.Constraint("DistanceX", 2, 3, -1, 1, 7.842238),
])
pad5 = body.newObject("PartDesign::Pad", "Pad004")
pad5.Profile = sketch16
pad5.Length = 15
pad5.Reversed = True

# Sketch on XY plane
sketch17 = body.newObject("Sketcher::SketchObject", "Sketch016")
sketch17.AttachmentSupport = (doc.getObject("XY_Plane"), [""])
sketch17.MapMode = "FlatFace"
sketch17.AttachmentOffset = App.Placement(Vector(0, 0, 25), App.Rotation())
sketch17.addGeometry([
    Part.Circle(Vector(-4.7, -24, 0), Vector(0, 0, 1), 1.5),
    Part.Circle(Vector(-14.7, -24, 0), Vector(0, 0, 1), 1.5),
], False)
sketch17.addConstraint([
    Sketcher.Constraint("Equal", 0, 1),
    Sketcher.Constraint("Horizontal", 0, 3, 1, 3),
    Sketcher.Constraint("Diameter", 0, 3.0),
    Sketcher.Constraint("DistanceX", 1, 3, 0, 3, 10.0),
    Sketcher.Constraint("DistanceX", 0, 3, -1, 1, 4.67569),
    Sketcher.Constraint("DistanceY", 0, 3, -1, 1, 23.954796),
])
pocket12 = body.newObject("PartDesign::Pocket", "Pocket011")
pocket12.Profile = sketch17
pocket12.Length = 10

doc.recompute()
